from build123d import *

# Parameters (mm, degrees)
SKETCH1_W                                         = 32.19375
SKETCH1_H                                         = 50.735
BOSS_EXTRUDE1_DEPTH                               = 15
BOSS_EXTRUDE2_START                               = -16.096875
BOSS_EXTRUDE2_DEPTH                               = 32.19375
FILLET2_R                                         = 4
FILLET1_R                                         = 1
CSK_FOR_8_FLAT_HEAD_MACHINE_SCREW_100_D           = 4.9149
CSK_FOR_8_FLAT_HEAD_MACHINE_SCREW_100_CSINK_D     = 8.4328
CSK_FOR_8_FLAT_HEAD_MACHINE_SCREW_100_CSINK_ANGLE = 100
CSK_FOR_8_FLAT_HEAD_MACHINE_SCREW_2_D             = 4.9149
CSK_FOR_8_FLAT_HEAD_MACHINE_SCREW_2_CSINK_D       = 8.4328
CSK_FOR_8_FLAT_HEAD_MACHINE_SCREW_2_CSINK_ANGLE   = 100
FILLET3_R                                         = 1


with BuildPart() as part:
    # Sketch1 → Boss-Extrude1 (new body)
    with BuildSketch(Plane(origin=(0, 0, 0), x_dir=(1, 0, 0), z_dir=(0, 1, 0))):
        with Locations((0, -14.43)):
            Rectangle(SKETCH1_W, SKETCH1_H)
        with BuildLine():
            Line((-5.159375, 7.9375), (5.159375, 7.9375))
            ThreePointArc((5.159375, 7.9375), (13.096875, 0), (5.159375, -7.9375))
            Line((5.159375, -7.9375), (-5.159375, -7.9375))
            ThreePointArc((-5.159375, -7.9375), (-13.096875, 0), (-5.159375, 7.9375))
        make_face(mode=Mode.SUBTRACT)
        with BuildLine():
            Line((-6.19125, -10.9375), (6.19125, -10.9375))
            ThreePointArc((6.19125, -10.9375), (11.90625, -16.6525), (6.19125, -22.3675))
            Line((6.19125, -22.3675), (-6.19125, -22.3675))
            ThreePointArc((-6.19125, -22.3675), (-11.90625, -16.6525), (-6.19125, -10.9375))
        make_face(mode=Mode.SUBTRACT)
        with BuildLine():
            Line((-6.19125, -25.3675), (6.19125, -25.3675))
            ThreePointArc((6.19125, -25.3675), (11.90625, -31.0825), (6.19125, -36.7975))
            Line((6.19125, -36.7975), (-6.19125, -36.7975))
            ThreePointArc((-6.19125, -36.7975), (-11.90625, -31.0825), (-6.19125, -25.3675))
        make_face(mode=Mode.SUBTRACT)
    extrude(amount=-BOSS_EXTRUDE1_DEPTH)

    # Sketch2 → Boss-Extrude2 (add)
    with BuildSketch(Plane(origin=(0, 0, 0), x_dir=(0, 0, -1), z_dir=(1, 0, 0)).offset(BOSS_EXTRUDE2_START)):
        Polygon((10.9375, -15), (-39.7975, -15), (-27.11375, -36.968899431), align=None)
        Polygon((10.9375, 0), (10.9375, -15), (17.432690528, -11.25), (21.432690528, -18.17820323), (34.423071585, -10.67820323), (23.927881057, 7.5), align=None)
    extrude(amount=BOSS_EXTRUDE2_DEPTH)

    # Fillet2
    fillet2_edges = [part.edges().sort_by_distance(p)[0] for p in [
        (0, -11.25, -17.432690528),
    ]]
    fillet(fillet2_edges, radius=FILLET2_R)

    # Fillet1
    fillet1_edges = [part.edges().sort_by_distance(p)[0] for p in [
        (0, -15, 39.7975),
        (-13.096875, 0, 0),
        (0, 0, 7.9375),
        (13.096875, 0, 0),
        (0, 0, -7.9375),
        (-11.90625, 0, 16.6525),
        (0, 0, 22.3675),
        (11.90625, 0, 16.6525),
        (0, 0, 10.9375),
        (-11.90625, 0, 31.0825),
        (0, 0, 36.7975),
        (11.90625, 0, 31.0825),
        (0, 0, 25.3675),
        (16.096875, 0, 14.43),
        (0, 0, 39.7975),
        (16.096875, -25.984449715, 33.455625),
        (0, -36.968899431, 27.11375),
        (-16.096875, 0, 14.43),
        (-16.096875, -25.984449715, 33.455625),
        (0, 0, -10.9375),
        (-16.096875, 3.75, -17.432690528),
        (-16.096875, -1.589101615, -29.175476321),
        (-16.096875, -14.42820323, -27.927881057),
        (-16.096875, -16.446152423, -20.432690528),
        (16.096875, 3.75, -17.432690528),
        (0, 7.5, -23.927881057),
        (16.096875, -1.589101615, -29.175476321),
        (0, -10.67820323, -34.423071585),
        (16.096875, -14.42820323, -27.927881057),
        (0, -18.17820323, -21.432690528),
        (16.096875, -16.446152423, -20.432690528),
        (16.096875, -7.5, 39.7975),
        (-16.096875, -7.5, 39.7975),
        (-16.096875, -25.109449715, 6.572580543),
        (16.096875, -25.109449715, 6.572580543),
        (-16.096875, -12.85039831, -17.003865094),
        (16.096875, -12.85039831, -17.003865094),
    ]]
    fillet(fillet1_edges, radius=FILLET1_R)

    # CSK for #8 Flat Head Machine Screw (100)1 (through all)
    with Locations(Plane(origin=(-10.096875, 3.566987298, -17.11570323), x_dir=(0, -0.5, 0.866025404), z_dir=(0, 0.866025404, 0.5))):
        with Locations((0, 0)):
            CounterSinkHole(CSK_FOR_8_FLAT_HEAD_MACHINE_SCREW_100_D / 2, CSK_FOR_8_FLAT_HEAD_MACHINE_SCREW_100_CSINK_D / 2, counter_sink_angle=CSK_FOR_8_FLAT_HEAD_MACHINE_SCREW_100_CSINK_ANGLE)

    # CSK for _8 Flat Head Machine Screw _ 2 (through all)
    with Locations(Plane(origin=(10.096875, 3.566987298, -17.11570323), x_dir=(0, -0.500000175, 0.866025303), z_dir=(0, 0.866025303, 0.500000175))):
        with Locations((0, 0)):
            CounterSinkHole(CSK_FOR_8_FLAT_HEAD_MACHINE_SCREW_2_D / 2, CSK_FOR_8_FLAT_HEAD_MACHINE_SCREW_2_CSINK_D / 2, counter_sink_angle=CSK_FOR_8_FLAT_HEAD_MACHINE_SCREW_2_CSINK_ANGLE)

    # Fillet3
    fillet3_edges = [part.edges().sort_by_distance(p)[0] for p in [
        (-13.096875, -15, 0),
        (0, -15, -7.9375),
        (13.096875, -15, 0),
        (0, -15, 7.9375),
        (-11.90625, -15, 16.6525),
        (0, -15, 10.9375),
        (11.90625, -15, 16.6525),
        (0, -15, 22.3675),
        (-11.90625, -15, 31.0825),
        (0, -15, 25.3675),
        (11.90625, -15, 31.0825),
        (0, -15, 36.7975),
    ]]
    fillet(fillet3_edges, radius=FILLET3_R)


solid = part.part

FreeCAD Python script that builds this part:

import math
import FreeCAD as App
import Part
import Sketcher

V = App.Vector
Q = App.Units.Quantity


def edges_at(feature, points):
    """Names of the edges that pass closest to the given points."""
    edges = feature.Shape.Edges
    near = lambda p: min(range(len(edges)), key=lambda i: edges[i].distToShape(Part.Vertex(*p))[0])
    return sorted({f"Edge{near(p) + 1}" for p in points})

doc = App.newDocument("Part")
body = doc.addObject("PartDesign::Body", "Body")

# Sketch on XZ plane
sketch1 = body.newObject("Sketcher::SketchObject", "Sketch")
sketch1.AttachmentSupport = (doc.getObject("XZ_Plane"), [""])
sketch1.MapMode = "FlatFace"
sketch1.addGeometry([
    Part.LineSegment(V(-16, -11, 0), V(-16, 40, 0)),  # 0
    Part.LineSegment(V(-16, 40, 0), V(16, 40, 0)),  # 1
    Part.LineSegment(V(16, 40, 0), V(16, -11, 0)),  # 2
    Part.LineSegment(V(16, -11, 0), V(-16, -11, 0)),  # 3
    Part.ArcOfCircle(Part.Circle(V(-6, 31, 0), V(0, 0, 1), 6), math.radians(90), math.radians(270)),  # 4
    Part.LineSegment(V(-6, 25, 0), V(6, 25, 0)),  # 5
    Part.ArcOfCircle(Part.Circle(V(6, 31, 0), V(0, 0, 1), 6), math.radians(-90), math.radians(90)),  # 6
    Part.LineSegment(V(6, 37, 0), V(-6, 37, 0)),  # 7
    Part.ArcOfCircle(Part.Circle(V(-6, 17, 0), V(0, 0, 1), 6), math.radians(90), math.radians(270)),  # 8
    Part.LineSegment(V(-6, 11, 0), V(6, 11, 0)),  # 9
    Part.ArcOfCircle(Part.Circle(V(6, 17, 0), V(0, 0, 1), 6), math.radians(-90), math.radians(90)),  # 10
    Part.LineSegment(V(6, 22, 0), V(-6, 22, 0)),  # 11
    Part.ArcOfCircle(Part.Circle(V(-5, 0, 0), V(0, 0, 1), 8), math.radians(90), math.radians(270)),  # 12
    Part.LineSegment(V(-5, -8, 0), V(5, -8, 0)),  # 13
    Part.ArcOfCircle(Part.Circle(V(5, 0, 0), V(0, 0, 1), 8), math.radians(-90), math.radians(90)),  # 14
    Part.LineSegment(V(5, 8, 0), V(-5, 8, 0)),  # 15
], False)
sketch1.addConstraint([
    Sketcher.Constraint("Coincident", 0, 2, 1, 1),
    Sketcher.Constraint("Coincident", 1, 2, 2, 1),
    Sketcher.Constraint("Coincident", 2, 2, 3, 1),
    Sketcher.Constraint("Coincident", 3, 2, 0, 1),
    Sketcher.Constraint("Tangent", 4, 2, 5, 1),
    Sketcher.Constraint("Tangent", 5, 2, 6, 1),
    Sketcher.Constraint("Tangent", 6, 2, 7, 1),
    Sketcher.Constraint("Tangent", 7, 2, 4, 1),
    Sketcher.Constraint("Tangent", 8, 2, 9, 1),
    Sketcher.Constraint("Tangent", 9, 2, 10, 1),
    Sketcher.Constraint("Tangent", 10, 2, 11, 1),
    Sketcher.Constraint("Tangent", 11, 2, 8, 1),
    Sketcher.Constraint("Tangent", 12, 2, 13, 1),
    Sketcher.Constraint("Tangent", 13, 2, 14, 1),
    Sketcher.Constraint("Tangent", 14, 2, 15, 1),
    Sketcher.Constraint("Tangent", 15, 2, 12, 1),
    Sketcher.Constraint("Vertical", 0),
    Sketcher.Constraint("Horizontal", 1),
    Sketcher.Constraint("Vertical", 2),
    Sketcher.Constraint("Horizontal", 3),
    Sketcher.Constraint("Horizontal", 5),
    Sketcher.Constraint("Horizontal", 7),
    Sketcher.Constraint("Horizontal", 9),
    Sketcher.Constraint("Horizontal", 11),
    Sketcher.Constraint("Horizontal", 13),
    Sketcher.Constraint("Horizontal", 15),
    Sketcher.Constraint("Equal", 6, 8),
    Sketcher.Constraint("Symmetric", 12, 3, 14, 3, -1, 1),
    Sketcher.Constraint("Vertical", 4, 3, 8, 3),
    Sketcher.Constraint("Vertical", 6, 3, 10, 3),
    Sketcher.Constraint("Radius", 4, 5.715),
    Sketcher.Constraint("DistanceY", 6, 2, 1, 2, 3.0),
    Sketcher.Constraint("DistanceY", 10, 2, 5, 2, 3.0),
    Sketcher.Constraint("DistanceY", 3, 2, 12, 2, 3.0),
    Sketcher.Constraint("DistanceY", 14, 2, 9, 2, 3.0),
    Sketcher.Constraint("Radius", 12, 7.9375),
    Sketcher.Constraint("DistanceX", 5, 1, 5, 2, 12.3825),
    Sketcher.Constraint("DistanceX", 1, 1, 1, 2, 32.19375),
    Sketcher.Constraint("DistanceX", 13, 1, 13, 2, 10.31875),
    Sketcher.Constraint("DistanceX", 0, 2, 12, 3, 10.9375),
    Sketcher.Constraint("DistanceX", 4, 3, -1, 1, 6.19125),
])
pad1 = body.newObject("PartDesign::Pad", "Pad")
pad1.Profile = sketch1
pad1.Length = 15

# Sketch on YZ plane
sketch2 = body.newObject("Sketcher::SketchObject", "Sketch001")
sketch2.AttachmentSupport = (doc.getObject("YZ_Plane"), [""])
sketch2.MapMode = "FlatFace"
sketch2.AttachmentOffset = App.Placement(V(0, 0, -16.096875), App.Rotation())
sketch2.addGeometry([
    Part.LineSegment(V(-15, -11, 0), V(-15, 40, 0)),  # 0
    Part.LineSegment(V(-15, 40, 0), V(-37, 27, 0)),  # 1
    Part.LineSegment(V(-37, 27, 0), V(-15, -11, 0)),  # 2
    Part.LineSegment(V(0, -11, 0), V(-15, -11, 0)),  # 3
    Part.LineSegment(V(-15, -11, 0), V(-11, -17, 0)),  # 4
    Part.LineSegment(V(-11, -17, 0), V(-18, -21, 0)),  # 5
    Part.LineSegment(V(-18, -21, 0), V(-11, -34, 0)),  # 6
    Part.LineSegment(V(-11, -34, 0), V(8, -24, 0)),  # 7
    Part.LineSegment(V(8, -24, 0), V(0, -11, 0)),  # 8
], False)
sketch2.addConstraint([
    Sketcher.Constraint("Coincident", 0, 2, 1, 1),
    Sketcher.Constraint("Coincident", 1, 2, 2, 1),
    Sketcher.Constraint("Coincident", 2, 2, 0, 1),
    Sketcher.Constraint("Coincident", 3, 2, 4, 1),
    Sketcher.Constraint("Coincident", 4, 2, 5, 1),
    Sketcher.Constraint("Coincident", 5, 2, 6, 1),
    Sketcher.Constraint("Coincident", 6, 2, 7, 1),
    Sketcher.Constraint("Coincident", 7, 2, 8, 1),
    Sketcher.Constraint("Coincident", 8, 2, 3, 1),
    Sketcher.Constraint("Vertical", 0),
    Sketcher.Constraint("Horizontal", 3),
    Sketcher.Constraint("Coincident", 3, 2, 2, 2),
    Sketcher.Constraint("PointOnObject", 8, 2, -2),
    Sketcher.Constraint("Perpendicular", 1, 2),
    Sketcher.Constraint("Parallel", 2, 4),
    Sketcher.Constraint("Perpendicular", 4, 5),
    Sketcher.Constraint("Perpendicular", 5, 6),
    Sketcher.Constraint("Perpendicular", 6, 7),
    Sketcher.Constraint("Perpendicular", 7, 8),
    Sketcher.Constraint("Equal", 6, 8),
    Sketcher.Constraint("DistanceX", 3, 2, 3, 1, 15.0),
    Sketcher.Constraint("Angle", 1, Q("-150 deg")),
    Sketcher.Constraint("Distance", 5, 8.0),
    Sketcher.Constraint("Distance", 6, 15.0),
    Sketcher.Constraint("DistanceY", 0, 1, 0, 2, 50.735),
    Sketcher.Constraint("DistanceY", -1, 1, 0, 2, 39.7975),
])
pad2 = body.newObject("PartDesign::Pad", "Pad001")
pad2.Profile = sketch2
pad2.Length = 32.19375
doc.recompute()

fillet = body.newObject("PartDesign::Fillet", "Fillet")
fillet.Base = (pad2, edges_at(pad2, [(0, -11.25, -17.433)]))
fillet.Radius = 4
doc.recompute()

fillet2 = body.newObject("PartDesign::Fillet", "Fillet001")
fillet2.Base = (fillet, edges_at(fillet, [
    (0, -15, 39.797),
    (-13.097, 0, 0),
    (0, 0, 7.938),
    (13.097, 0, 0),
    (0, 0, -7.938),
    (-11.906, 0, 16.652),
    (0, 0, 22.367),
    (11.906, 0, 16.652),
    (0, 0, 10.938),
    (-11.906, 0, 31.082),
    (0, 0, 36.797),
    (11.906, 0, 31.082),
    (0, 0, 25.367),
    (16.097, 0, 14.43),
    (0, 0, 39.797),
    (16.097, -25.984, 33.456),
    (0, -36.969, 27.114),
    (-16.097, 0, 14.43),
    (-16.097, -25.984, 33.456),
    (0, 0, -10.938),
    (-16.097, 3.75, -17.433),
    (-16.097, -1.589, -29.175),
    (-16.097, -14.428, -27.928),
    (-16.097, -16.446, -20.433),
    (16.097, 3.75, -17.433),
    (0, 7.5, -23.928),
    (16.097, -1.589, -29.175),
    (0, -10.678, -34.423),
    (16.097, -14.428, -27.928),
    (0, -18.178, -21.433),
    (16.097, -16.446, -20.433),
    (16.097, -7.5, 39.797),
    (-16.097, -7.5, 39.797),
    (-16.097, -25.984, 8.088),
    (16.097, -25.984, 8.088),
    (-16.097, -12.85, -17.004),
    (16.097, -12.85, -17.004),
]))
fillet2.Radius = 1

# Sketch on an angled plane
sketch3 = body.newObject("Sketcher::SketchObject", "Sketch002")
sketch3.Placement = App.Placement(V(0, -4.736076, -2.734375), App.Rotation(V(0, -0.5, 0.866025404), V(1, 0, 0), V(0, 0.866025404, 0.5), "ZXY"))
sketch3.addGeometry(Part.Circle(V(-16.6, -10.1, 0), V(0, 0, 1), 2.5), False)
sketch3.addConstraint([
    Sketcher.Constraint("Diameter", 0, 4.9149),
    Sketcher.Constraint("DistanceX", 0, 3, -1, 1, 16.606127),
    Sketcher.Constraint("DistanceY", 0, 3, -1, 1, 10.096875),
])
doc.recompute()
hole = body.newObject("PartDesign::Hole", "Hole")
hole.Profile = sketch3
hole.ThreadType = "None"
hole.Diameter = 4.9149
hole.DepthType = "ThroughAll"
hole.HoleCutType = "Countersink"
hole.HoleCutDiameter = 8.4328
hole.HoleCutCountersinkAngle = 100

# Sketch on an angled plane
sketch4 = body.newObject("Sketcher::SketchObject", "Sketch003")
sketch4.Placement = App.Placement(V(0, -4.736079, -2.734378), App.Rotation(V(0, -0.500000175, 0.866025303), V(1, 0, 0), V(0, 0.866025303, 0.500000175), "ZXY"))
sketch4.addGeometry(Part.Circle(V(-16.6, 10.1, 0), V(0, 0, 1), 2.5), False)
sketch4.addConstraint([
    Sketcher.Constraint("Diameter", 0, 4.9149),
    Sketcher.Constraint("DistanceX", 0, 3, -1, 1, 16.606126),
    Sketcher.Constraint("DistanceY", -1, 1, 0, 3, 10.096875),
])
doc.recompute()
hole2 = body.newObject("PartDesign::Hole", "Hole001")
hole2.Profile = sketch4
hole2.ThreadType = "None"
hole2.Diameter = 4.9149
hole2.DepthType = "ThroughAll"
hole2.HoleCutType = "Countersink"
hole2.HoleCutDiameter = 8.4328
hole2.HoleCutCountersinkAngle = 100
doc.recompute()

fillet3 = body.newObject("PartDesign::Fillet", "Fillet002")
fillet3.Base = (hole2, edges_at(hole2, [
    (-13.097, -15, 0),
    (0, -15, -7.938),
    (13.097, -15, 0),
    (0, -15, 7.938),
    (-11.906, -15, 16.652),
    (0, -15, 10.938),
    (11.906, -15, 16.652),
    (0, -15, 22.367),
    (-11.906, -15, 31.082),
    (0, -15, 25.367),
    (11.906, -15, 31.082),
    (0, -15, 36.797),
]))
fillet3.Radius = 1

doc.recompute()
